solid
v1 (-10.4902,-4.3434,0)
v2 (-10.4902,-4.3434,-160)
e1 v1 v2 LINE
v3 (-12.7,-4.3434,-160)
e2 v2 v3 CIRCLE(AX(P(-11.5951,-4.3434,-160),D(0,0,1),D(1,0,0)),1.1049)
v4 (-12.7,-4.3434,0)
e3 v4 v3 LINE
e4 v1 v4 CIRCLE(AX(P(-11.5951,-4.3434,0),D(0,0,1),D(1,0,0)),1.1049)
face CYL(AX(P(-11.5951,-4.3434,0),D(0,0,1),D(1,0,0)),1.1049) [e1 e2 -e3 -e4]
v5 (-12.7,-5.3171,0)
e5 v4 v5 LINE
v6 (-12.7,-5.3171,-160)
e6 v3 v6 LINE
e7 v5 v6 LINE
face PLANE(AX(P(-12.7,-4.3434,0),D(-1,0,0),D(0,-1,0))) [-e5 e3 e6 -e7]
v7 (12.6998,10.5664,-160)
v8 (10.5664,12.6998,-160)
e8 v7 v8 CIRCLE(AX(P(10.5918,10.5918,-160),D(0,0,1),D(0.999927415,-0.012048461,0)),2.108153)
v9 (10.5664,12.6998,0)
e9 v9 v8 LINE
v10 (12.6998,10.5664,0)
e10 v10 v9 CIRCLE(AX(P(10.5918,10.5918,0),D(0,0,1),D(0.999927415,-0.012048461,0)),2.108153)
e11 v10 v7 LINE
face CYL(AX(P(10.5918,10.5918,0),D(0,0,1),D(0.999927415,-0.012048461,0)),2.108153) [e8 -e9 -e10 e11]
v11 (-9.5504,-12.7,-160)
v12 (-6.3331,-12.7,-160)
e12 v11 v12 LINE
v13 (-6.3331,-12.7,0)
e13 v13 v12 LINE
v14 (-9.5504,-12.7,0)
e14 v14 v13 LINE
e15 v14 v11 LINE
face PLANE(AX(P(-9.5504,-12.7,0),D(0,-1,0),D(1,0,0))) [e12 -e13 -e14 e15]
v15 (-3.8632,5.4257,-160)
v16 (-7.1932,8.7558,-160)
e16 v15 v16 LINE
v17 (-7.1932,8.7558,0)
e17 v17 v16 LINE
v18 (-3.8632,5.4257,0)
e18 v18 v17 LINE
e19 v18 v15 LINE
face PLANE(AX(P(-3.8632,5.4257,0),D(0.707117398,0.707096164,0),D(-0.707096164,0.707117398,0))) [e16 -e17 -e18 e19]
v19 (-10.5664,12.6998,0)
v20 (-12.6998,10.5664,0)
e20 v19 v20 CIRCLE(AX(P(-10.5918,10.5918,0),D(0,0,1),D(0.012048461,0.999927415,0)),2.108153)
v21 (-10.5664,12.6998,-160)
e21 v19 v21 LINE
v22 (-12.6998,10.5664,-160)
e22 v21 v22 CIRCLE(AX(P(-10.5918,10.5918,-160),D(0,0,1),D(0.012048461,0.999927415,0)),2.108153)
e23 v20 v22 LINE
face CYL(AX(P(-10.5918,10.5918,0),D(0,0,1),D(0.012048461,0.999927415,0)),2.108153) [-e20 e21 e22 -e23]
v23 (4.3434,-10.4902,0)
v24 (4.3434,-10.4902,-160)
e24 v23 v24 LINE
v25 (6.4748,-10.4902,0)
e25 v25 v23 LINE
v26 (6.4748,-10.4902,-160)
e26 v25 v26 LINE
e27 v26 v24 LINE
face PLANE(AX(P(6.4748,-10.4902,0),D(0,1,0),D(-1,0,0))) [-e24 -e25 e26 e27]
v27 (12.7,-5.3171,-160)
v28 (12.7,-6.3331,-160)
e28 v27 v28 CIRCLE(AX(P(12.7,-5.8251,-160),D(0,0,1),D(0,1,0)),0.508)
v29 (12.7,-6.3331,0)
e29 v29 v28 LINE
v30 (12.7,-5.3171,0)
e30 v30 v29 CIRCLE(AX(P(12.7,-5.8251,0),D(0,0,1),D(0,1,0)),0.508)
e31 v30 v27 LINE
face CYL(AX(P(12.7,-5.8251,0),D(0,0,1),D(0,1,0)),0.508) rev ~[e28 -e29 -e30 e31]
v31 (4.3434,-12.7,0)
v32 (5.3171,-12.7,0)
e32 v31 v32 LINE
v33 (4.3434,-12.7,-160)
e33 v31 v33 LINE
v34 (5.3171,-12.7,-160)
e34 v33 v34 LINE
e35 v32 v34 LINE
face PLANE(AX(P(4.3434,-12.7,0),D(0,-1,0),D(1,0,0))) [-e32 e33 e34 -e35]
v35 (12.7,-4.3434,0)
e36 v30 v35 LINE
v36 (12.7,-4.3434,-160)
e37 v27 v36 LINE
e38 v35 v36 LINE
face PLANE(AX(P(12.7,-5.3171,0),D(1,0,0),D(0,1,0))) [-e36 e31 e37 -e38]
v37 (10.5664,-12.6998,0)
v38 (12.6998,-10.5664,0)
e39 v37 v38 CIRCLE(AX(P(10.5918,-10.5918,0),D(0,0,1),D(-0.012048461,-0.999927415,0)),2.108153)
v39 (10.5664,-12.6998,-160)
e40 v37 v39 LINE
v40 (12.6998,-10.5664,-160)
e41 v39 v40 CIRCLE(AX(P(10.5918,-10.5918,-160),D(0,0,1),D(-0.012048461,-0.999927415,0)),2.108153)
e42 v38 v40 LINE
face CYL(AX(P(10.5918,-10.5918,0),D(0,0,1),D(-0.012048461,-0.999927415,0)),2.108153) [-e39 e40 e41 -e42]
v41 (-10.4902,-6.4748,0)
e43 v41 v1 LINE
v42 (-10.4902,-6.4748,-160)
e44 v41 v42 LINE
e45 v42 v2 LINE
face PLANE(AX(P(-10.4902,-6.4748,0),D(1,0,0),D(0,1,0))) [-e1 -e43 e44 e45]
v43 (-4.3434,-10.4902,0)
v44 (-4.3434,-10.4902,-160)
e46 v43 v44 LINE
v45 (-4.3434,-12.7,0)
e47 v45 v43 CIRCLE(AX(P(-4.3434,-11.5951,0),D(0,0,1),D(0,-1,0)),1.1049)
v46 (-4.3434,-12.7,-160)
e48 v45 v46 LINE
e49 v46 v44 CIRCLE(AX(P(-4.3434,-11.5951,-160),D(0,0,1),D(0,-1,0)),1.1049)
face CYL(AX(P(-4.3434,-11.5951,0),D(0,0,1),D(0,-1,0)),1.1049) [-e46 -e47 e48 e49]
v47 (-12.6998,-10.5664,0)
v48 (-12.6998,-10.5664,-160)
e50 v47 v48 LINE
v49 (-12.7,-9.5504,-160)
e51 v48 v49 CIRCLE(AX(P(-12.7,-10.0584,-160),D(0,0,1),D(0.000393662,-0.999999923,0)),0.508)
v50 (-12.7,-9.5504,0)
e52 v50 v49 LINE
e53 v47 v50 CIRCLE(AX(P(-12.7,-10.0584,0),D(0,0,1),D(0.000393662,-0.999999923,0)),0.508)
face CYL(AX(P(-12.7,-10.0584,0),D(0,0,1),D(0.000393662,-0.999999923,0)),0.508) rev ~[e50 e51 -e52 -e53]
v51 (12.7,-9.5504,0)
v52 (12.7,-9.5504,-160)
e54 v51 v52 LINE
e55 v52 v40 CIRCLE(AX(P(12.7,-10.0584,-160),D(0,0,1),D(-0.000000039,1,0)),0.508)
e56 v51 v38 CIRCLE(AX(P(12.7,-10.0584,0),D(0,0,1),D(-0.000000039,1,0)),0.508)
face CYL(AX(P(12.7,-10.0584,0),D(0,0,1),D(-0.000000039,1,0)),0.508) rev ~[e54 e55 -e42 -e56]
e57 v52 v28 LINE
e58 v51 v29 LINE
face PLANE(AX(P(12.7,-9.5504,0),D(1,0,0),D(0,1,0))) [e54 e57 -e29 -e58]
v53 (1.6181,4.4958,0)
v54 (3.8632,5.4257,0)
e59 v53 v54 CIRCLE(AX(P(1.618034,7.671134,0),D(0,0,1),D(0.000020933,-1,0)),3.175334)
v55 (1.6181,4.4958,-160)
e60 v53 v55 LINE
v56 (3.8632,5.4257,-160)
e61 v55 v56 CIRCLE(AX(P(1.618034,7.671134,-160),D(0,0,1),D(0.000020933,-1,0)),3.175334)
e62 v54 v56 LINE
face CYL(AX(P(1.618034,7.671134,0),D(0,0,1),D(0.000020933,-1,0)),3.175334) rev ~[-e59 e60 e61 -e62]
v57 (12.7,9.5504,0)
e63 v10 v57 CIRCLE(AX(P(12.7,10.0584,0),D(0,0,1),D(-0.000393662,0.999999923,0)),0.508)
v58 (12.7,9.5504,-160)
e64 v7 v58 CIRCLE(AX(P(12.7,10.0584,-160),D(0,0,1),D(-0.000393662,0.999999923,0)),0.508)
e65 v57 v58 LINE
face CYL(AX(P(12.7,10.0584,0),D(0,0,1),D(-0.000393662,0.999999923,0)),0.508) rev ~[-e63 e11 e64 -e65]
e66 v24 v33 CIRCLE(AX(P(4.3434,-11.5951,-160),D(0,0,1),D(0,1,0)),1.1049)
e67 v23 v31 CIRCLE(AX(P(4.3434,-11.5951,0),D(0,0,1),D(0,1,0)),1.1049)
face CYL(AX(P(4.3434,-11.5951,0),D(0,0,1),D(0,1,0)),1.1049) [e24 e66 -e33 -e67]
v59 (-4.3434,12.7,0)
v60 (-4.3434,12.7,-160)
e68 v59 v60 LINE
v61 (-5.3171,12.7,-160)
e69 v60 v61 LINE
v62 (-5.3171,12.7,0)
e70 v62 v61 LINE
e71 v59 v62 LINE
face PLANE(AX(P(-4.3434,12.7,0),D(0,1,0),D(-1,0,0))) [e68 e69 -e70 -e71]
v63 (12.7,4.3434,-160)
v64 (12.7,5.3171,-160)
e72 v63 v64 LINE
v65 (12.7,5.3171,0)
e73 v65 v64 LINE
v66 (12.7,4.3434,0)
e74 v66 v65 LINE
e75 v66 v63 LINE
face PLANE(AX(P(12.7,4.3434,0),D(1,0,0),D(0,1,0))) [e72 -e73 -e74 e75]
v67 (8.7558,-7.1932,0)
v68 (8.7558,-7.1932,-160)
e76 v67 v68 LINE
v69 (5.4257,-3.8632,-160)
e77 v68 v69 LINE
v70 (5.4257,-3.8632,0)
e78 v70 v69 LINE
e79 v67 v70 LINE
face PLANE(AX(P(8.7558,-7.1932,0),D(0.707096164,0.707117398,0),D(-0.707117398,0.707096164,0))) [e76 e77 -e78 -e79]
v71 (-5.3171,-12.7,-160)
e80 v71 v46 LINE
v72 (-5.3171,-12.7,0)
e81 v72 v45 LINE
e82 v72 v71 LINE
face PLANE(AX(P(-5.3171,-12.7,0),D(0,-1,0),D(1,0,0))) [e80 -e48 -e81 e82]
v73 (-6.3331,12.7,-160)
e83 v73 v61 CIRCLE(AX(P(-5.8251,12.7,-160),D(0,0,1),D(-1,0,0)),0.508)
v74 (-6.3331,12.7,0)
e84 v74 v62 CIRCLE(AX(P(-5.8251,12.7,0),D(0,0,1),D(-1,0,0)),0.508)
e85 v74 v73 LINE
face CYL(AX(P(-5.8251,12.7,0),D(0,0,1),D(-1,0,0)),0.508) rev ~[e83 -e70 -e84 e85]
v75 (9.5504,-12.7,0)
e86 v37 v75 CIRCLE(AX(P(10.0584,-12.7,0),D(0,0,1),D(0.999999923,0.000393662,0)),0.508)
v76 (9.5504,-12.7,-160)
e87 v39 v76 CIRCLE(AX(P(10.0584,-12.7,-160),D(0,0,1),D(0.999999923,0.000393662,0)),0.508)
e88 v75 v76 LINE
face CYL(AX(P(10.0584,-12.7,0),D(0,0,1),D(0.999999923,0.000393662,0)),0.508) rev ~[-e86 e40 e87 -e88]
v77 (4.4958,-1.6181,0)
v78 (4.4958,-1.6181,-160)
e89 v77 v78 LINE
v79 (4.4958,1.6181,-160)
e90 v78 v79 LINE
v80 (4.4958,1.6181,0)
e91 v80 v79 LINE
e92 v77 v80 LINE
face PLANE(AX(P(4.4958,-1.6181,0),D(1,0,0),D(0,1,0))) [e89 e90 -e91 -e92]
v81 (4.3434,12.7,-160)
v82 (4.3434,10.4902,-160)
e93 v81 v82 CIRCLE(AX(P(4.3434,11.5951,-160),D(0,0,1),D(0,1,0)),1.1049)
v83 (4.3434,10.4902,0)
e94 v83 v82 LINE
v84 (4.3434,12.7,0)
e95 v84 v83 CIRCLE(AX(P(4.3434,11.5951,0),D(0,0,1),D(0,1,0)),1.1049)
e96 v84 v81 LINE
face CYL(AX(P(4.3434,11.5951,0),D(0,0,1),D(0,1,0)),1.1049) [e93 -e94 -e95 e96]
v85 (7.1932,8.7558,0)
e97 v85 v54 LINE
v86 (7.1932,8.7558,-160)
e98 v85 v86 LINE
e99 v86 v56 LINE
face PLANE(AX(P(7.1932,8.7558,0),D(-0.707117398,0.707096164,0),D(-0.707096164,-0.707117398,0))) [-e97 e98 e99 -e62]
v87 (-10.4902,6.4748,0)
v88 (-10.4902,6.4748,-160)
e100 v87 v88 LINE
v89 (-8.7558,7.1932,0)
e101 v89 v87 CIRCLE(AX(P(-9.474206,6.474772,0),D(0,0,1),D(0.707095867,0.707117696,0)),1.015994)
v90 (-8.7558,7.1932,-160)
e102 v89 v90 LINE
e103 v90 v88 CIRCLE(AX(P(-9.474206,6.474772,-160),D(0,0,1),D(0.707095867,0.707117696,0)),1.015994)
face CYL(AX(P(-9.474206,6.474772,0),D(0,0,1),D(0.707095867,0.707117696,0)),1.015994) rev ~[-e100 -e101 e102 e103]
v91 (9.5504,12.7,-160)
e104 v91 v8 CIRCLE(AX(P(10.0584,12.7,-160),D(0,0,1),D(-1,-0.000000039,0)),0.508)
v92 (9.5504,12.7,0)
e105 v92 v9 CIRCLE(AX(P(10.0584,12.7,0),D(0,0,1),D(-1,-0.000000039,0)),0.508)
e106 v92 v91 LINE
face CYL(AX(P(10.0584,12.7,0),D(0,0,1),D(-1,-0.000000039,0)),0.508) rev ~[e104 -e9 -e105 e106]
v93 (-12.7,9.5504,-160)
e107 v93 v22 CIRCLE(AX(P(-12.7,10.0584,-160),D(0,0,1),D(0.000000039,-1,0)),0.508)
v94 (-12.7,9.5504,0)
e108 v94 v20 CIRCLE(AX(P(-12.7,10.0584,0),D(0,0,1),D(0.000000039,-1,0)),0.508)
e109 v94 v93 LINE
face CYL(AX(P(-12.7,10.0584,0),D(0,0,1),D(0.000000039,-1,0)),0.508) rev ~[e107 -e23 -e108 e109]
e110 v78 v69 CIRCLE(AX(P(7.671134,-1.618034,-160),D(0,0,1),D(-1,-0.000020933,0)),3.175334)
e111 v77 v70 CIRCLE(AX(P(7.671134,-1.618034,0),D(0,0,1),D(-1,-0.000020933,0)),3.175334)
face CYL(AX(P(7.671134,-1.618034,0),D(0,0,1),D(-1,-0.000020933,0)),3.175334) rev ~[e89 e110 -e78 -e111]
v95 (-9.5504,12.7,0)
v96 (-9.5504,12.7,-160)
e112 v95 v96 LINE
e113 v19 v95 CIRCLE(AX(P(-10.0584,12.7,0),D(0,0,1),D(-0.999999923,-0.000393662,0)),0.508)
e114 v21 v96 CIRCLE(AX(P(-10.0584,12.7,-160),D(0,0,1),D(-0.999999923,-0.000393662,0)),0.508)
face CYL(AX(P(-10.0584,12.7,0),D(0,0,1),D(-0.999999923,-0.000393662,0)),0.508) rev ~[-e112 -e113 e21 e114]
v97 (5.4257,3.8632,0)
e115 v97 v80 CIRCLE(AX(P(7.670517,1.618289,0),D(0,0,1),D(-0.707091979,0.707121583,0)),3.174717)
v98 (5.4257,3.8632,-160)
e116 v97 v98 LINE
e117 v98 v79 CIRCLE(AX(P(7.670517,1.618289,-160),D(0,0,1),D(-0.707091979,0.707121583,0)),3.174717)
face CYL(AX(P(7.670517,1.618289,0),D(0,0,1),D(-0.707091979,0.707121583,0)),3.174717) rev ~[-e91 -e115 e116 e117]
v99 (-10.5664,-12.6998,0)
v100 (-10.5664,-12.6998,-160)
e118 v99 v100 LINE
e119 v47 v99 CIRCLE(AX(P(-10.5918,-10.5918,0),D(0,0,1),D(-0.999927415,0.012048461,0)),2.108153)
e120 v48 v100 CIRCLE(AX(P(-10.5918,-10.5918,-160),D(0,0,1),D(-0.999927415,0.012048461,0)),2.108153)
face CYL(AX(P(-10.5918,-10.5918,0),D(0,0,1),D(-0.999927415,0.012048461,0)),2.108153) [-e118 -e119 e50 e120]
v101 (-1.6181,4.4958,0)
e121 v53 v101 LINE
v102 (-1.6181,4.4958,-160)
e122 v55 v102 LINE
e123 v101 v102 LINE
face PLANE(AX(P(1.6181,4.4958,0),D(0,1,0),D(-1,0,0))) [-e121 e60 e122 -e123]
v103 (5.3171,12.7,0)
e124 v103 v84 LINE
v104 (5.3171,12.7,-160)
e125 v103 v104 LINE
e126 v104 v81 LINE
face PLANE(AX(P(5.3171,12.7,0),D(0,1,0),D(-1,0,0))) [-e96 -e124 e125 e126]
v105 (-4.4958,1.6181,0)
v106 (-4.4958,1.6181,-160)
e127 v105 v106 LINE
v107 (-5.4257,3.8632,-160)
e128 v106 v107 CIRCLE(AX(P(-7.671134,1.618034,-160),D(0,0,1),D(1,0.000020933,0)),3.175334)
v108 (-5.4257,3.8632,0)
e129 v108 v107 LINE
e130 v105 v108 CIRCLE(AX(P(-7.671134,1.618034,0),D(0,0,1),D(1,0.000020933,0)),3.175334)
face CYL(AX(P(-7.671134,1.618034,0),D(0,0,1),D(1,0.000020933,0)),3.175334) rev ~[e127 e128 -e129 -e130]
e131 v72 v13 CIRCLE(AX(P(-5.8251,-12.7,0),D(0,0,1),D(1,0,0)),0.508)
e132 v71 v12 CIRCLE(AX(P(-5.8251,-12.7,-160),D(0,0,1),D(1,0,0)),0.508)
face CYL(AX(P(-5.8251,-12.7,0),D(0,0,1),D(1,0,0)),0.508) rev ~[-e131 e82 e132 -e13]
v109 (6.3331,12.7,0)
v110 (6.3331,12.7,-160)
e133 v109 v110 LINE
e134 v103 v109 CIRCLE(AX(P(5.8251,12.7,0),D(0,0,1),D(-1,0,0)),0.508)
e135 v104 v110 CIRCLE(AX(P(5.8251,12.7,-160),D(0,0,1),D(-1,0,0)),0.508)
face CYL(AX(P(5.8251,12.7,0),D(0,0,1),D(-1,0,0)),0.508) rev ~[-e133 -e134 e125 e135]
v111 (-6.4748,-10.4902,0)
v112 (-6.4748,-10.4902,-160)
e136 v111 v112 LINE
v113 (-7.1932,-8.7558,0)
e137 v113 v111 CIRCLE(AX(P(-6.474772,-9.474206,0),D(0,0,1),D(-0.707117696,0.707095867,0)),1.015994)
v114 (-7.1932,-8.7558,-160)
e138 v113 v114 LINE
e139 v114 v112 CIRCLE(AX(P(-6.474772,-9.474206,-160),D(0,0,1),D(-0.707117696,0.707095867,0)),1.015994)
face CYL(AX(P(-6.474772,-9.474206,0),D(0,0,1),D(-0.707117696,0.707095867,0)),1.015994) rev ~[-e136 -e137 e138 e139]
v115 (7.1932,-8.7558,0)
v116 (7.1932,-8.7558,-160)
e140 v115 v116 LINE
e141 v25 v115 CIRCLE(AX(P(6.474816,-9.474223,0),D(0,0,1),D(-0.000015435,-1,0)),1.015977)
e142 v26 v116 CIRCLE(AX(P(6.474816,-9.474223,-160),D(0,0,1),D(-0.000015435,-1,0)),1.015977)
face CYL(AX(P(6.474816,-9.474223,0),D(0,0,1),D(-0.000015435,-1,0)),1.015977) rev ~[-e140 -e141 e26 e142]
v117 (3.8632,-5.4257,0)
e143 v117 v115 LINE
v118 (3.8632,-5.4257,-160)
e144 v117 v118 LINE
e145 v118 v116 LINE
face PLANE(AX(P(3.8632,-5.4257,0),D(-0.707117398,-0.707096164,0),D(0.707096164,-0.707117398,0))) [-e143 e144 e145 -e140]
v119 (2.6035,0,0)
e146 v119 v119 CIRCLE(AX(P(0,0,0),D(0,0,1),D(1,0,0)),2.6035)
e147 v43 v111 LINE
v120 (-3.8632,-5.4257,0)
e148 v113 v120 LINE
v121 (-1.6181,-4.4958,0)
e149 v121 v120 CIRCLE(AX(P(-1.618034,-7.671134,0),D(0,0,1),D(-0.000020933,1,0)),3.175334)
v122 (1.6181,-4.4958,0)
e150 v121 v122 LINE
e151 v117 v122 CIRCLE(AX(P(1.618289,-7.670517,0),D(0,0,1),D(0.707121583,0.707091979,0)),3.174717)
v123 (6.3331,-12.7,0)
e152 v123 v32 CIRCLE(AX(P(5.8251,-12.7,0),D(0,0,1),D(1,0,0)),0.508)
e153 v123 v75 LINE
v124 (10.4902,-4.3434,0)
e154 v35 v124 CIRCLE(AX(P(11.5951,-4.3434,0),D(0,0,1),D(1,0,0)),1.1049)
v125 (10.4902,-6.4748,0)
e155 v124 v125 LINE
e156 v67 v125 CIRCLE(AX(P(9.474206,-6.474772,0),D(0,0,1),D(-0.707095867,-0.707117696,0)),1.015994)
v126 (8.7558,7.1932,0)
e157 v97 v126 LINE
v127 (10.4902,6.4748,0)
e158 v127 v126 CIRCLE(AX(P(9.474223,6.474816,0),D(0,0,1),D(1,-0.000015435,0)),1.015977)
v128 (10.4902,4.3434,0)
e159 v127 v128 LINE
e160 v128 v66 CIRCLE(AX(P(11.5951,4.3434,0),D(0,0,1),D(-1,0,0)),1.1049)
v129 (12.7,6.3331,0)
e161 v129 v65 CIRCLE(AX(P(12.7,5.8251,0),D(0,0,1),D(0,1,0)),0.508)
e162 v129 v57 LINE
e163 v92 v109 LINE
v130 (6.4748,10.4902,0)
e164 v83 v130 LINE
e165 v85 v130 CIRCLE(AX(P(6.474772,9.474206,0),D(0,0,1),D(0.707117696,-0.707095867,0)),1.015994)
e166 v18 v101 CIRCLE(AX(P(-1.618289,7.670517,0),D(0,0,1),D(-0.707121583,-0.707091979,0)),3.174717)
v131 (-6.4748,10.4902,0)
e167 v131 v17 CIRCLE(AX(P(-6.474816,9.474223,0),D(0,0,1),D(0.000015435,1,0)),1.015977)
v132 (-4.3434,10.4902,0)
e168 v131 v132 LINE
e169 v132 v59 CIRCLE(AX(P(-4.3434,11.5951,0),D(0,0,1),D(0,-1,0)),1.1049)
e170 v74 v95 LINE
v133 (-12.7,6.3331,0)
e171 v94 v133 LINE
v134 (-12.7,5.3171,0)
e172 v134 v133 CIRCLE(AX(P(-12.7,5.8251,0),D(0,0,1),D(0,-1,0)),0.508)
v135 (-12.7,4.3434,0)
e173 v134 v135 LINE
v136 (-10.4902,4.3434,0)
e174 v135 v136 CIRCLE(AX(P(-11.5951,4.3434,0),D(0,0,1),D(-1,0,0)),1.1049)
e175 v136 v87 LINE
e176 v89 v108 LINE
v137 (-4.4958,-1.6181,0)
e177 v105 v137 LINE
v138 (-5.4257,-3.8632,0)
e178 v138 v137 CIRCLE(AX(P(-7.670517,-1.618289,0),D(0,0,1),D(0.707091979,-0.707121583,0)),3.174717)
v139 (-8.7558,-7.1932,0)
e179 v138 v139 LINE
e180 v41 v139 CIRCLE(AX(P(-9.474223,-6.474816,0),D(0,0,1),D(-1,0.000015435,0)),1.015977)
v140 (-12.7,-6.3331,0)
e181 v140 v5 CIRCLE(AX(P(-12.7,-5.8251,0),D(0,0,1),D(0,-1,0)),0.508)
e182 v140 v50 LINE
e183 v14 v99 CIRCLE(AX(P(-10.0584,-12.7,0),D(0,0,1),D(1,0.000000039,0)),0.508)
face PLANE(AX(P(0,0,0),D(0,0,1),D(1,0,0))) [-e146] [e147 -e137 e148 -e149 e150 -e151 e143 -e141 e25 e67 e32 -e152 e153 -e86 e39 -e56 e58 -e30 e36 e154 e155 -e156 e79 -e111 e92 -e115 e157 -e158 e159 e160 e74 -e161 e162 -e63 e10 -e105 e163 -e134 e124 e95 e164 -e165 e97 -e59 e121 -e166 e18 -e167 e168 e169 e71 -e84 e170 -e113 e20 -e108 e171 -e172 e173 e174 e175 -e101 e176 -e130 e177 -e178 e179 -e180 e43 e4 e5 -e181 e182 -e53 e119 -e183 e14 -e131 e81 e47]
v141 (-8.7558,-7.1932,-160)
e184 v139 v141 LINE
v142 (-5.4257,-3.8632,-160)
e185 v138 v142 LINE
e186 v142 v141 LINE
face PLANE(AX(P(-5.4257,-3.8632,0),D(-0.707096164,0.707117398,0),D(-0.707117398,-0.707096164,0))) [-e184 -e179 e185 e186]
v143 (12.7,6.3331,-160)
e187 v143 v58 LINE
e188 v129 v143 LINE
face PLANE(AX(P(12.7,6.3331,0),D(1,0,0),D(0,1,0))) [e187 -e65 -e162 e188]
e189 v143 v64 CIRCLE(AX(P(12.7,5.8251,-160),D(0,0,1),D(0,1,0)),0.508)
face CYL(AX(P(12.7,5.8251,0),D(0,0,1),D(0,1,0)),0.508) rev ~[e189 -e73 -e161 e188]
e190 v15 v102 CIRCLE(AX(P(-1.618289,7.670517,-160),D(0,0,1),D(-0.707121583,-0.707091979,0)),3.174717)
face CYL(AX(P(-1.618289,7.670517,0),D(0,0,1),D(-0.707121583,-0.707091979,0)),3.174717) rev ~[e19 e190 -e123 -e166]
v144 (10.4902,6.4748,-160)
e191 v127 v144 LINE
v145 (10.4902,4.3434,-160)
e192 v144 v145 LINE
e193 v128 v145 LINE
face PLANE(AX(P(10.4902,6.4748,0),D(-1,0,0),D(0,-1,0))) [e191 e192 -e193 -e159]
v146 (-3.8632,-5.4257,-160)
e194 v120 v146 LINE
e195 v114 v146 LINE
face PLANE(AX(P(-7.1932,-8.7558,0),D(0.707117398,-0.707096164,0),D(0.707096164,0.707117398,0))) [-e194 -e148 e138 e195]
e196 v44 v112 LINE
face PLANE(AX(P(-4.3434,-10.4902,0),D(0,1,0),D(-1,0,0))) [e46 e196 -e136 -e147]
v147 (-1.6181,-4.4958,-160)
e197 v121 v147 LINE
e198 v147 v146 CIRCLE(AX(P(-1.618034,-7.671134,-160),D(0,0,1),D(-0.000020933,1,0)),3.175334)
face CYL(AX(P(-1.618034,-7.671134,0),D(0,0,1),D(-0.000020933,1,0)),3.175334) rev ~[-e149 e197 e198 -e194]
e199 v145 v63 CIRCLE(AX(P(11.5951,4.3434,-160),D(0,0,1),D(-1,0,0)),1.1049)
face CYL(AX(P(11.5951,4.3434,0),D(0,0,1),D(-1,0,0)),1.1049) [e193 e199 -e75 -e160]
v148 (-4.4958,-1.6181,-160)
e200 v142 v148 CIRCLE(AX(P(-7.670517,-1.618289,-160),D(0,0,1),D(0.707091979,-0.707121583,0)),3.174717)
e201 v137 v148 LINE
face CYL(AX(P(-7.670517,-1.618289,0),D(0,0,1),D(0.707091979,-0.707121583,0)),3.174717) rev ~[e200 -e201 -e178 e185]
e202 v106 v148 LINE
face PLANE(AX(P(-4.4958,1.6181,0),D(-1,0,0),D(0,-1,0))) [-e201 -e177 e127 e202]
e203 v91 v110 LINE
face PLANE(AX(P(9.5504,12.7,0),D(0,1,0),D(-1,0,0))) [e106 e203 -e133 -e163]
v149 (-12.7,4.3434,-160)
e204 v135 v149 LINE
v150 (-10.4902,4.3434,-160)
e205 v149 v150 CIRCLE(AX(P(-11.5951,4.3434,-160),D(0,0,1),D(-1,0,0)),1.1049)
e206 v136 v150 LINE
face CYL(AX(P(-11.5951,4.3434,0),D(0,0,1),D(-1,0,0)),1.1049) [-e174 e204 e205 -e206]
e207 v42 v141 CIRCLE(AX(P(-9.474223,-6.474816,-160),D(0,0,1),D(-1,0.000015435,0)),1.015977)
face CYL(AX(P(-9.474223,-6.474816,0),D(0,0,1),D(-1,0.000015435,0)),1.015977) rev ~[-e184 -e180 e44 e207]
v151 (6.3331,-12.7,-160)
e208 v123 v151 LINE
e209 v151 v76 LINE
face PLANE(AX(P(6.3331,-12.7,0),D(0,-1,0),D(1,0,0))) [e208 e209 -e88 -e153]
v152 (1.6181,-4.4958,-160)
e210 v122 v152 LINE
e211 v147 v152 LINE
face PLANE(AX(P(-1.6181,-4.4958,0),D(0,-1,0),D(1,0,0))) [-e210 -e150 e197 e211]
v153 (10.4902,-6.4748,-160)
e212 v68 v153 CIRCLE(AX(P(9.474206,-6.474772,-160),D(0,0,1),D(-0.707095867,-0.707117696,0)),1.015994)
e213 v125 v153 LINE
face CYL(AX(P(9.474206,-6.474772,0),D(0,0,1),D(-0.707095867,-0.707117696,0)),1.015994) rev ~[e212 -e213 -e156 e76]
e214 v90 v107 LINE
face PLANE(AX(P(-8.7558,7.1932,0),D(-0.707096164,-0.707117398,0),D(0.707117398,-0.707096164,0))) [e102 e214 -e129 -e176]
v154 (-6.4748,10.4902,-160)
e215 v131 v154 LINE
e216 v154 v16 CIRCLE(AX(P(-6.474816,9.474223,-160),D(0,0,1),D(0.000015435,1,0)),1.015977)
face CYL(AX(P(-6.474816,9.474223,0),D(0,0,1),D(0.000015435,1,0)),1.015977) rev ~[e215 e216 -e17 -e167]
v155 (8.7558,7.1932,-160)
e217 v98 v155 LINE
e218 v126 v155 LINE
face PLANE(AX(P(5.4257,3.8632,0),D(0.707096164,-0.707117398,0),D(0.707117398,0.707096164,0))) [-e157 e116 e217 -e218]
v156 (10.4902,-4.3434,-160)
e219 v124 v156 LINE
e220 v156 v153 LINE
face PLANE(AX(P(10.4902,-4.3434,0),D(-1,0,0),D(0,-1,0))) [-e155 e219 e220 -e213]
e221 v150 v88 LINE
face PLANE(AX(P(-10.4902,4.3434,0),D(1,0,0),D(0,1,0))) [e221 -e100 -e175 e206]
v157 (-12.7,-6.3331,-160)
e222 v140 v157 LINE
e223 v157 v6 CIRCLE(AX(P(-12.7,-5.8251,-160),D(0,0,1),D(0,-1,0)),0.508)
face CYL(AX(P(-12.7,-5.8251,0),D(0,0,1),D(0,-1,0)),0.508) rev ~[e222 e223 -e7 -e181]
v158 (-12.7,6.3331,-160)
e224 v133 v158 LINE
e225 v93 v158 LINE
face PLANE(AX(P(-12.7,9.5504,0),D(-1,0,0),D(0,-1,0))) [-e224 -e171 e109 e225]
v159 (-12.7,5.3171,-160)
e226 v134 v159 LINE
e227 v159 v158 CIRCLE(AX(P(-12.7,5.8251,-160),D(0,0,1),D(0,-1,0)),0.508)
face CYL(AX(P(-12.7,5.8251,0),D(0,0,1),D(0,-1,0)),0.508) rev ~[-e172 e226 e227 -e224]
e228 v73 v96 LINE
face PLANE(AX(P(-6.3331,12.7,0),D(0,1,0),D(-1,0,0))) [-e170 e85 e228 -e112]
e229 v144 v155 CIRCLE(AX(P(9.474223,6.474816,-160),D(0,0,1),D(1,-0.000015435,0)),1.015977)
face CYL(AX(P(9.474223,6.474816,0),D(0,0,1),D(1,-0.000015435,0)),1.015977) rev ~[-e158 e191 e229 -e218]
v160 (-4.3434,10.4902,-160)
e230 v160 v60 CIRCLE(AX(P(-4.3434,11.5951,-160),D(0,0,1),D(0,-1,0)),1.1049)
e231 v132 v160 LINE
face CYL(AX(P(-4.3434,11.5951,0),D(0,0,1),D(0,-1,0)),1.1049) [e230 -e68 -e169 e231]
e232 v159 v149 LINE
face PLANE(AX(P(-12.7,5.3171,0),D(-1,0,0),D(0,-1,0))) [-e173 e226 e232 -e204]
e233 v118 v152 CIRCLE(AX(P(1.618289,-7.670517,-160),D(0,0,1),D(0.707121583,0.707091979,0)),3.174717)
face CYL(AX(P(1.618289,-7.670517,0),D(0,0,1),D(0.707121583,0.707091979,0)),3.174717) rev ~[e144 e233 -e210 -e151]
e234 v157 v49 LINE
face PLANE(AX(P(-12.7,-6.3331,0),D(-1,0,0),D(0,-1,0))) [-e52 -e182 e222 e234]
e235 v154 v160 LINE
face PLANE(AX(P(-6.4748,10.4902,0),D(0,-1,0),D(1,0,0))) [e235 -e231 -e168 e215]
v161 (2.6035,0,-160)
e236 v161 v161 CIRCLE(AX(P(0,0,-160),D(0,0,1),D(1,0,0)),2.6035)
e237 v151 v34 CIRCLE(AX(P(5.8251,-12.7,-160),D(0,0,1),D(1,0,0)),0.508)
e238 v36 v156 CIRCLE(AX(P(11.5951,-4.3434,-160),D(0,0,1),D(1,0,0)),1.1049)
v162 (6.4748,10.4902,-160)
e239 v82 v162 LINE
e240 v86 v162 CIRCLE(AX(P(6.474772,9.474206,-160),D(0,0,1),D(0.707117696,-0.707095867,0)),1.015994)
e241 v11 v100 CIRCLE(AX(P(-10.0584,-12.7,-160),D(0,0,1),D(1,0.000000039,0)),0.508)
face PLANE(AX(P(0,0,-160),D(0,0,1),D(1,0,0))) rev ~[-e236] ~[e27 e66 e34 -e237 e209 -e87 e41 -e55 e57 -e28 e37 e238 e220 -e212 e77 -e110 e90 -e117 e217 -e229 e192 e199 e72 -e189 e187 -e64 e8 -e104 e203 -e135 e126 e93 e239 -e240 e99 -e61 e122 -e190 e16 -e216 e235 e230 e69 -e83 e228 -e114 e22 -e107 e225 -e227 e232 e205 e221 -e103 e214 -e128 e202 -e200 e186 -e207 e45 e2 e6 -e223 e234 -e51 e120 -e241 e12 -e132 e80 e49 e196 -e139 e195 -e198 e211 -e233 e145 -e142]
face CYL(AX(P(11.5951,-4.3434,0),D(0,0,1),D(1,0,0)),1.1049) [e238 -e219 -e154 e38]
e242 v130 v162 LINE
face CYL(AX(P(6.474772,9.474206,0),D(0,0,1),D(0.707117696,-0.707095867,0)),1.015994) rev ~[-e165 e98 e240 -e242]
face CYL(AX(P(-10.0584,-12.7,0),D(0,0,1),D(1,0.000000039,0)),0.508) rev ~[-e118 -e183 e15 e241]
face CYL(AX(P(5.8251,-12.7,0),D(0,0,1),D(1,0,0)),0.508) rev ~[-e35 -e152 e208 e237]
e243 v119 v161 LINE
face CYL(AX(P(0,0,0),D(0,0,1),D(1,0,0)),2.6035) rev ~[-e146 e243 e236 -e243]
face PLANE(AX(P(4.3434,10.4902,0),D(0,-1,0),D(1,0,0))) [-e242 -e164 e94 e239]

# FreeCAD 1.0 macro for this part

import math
import FreeCAD as App
import Part
import Sketcher
Q = App.Units.Quantity

doc = App.newDocument("Part")
params = doc.addObject("Spreadsheet::Sheet", "Params")
for row, (alias, value) in enumerate([
    ("sketch1_radius", "0.02 in"),
    ("sketch1_radius2", "0.04 in"),
    ("sketch1_diameter", "0.205 in"),
    ("sketch1_radius3", "0.083 in"),
    ("sketch1_radius4", "0.125 in"),
    ("pad1_length", "160 mm"),
], start=1):
    params.set(f"A{row}", alias)
    params.set(f"B{row}", "=" + value)
    params.setAlias(f"B{row}", alias)

body = doc.addObject("PartDesign::Body", "Body")

# Sketch on XY plane
sketch1 = doc.addObject("Sketcher::SketchObject", "Sketch")
body.addObject(sketch1)
sketch1.AttachmentSupport = (doc.XY_Plane, [""])
sketch1.MapMode = "FlatFace"
sketch1.addGeometry([
    Part.ArcOfCircle(Part.Circle(App.Vector(-12.7, -10.1, 0), App.Vector(0, 0, 1), 0.5), math.radians(-90), math.radians(90)),  # 0
    Part.ArcOfCircle(Part.Circle(App.Vector(-10.6, -10.6, 0), App.Vector(0, 0, 1), 2.1), math.radians(179), math.radians(271)),  # 1
    Part.ArcOfCircle(Part.Circle(App.Vector(-10.1, -12.7, 0), App.Vector(0, 0, 1), 0.5), math.radians(0), math.radians(180)),  # 2
    Part.LineSegment(App.Vector(-9.6, -12.7, 0), App.Vector(-6.3, -12.7, 0)),  # 3
    Part.ArcOfCircle(Part.Circle(App.Vector(-5.8, -12.7, 0), App.Vector(0, 0, 1), 0.5), math.radians(0), math.radians(180)),  # 4
    Part.LineSegment(App.Vector(-5.3, -12.7, 0), App.Vector(-4.3, -12.7, 0)),  # 5
    Part.ArcOfCircle(Part.Circle(App.Vector(-4.3, -11.6, 0), App.Vector(0, 0, 1), 1.1), math.radians(-90), math.radians(90)),  # 6
    Part.LineSegment(App.Vector(-4.3, -10.5, 0), App.Vector(-6.5, -10.5, 0)),  # 7
    Part.ArcOfCircle(Part.Circle(App.Vector(-6.5, -9.5, 0), App.Vector(0, 0, 1), 1), math.radians(135), math.radians(270)),  # 8
    Part.LineSegment(App.Vector(-7.2, -8.8, 0), App.Vector(-3.9, -5.4, 0)),  # 9
    Part.ArcOfCircle(Part.Circle(App.Vector(-1.6, -7.7, 0), App.Vector(0, 0, 1), 3.2), math.radians(90), math.radians(135)),  # 10
    Part.LineSegment(App.Vector(-1.6, -4.5, 0), App.Vector(1.6, -4.5, 0)),  # 11
    Part.ArcOfCircle(Part.Circle(App.Vector(1.6, -7.7, 0), App.Vector(0, 0, 1), 3.2), math.radians(45), math.radians(90)),  # 12
    Part.LineSegment(App.Vector(3.9, -5.4, 0), App.Vector(7.2, -8.8, 0)),  # 13
    Part.ArcOfCircle(Part.Circle(App.Vector(6.5, -9.5, 0), App.Vector(0, 0, 1), 1), math.radians(-90), math.radians(45)),  # 14
    Part.LineSegment(App.Vector(6.5, -10.5, 0), App.Vector(4.3, -10.5, 0)),  # 15
    Part.ArcOfCircle(Part.Circle(App.Vector(4.3, -11.6, 0), App.Vector(0, 0, 1), 1.1), math.radians(90), math.radians(270)),  # 16
    Part.LineSegment(App.Vector(4.3, -12.7, 0), App.Vector(5.3, -12.7, 0)),  # 17
    Part.ArcOfCircle(Part.Circle(App.Vector(5.8, -12.7, 0), App.Vector(0, 0, 1), 0.5), math.radians(0), math.radians(180)),  # 18
    Part.LineSegment(App.Vector(6.3, -12.7, 0), App.Vector(9.6, -12.7, 0)),  # 19
    Part.ArcOfCircle(Part.Circle(App.Vector(10.1, -12.7, 0), App.Vector(0, 0, 1), 0.5), math.radians(0), math.radians(180)),  # 20
    Part.ArcOfCircle(Part.Circle(App.Vector(10.6, -10.6, 0), App.Vector(0, 0, 1), 2.1), math.radians(-91), math.radians(1)),  # 21
    Part.ArcOfCircle(Part.Circle(App.Vector(12.7, -10.1, 0), App.Vector(0, 0, 1), 0.5), math.radians(90), math.radians(270)),  # 22
    Part.LineSegment(App.Vector(12.7, -9.6, 0), App.Vector(12.7, -6.3, 0)),  # 23
    Part.ArcOfCircle(Part.Circle(App.Vector(12.7, -5.8, 0), App.Vector(0, 0, 1), 0.5), math.radians(90), math.radians(270)),  # 24
    Part.LineSegment(App.Vector(12.7, -5.3, 0), App.Vector(12.7, -4.3, 0)),  # 25
    Part.ArcOfCircle(Part.Circle(App.Vector(11.6, -4.3, 0), App.Vector(0, 0, 1), 1.1), math.radians(0), math.radians(180)),  # 26
    Part.LineSegment(App.Vector(10.5, -4.3, 0), App.Vector(10.5, -6.5, 0)),  # 27
    Part.ArcOfCircle(Part.Circle(App.Vector(9.5, -6.5, 0), App.Vector(0, 0, 1), 1), math.radians(-135), math.radians(0)),  # 28
    Part.LineSegment(App.Vector(8.8, -7.2, 0), App.Vector(5.4, -3.9, 0)),  # 29
    Part.ArcOfCircle(Part.Circle(App.Vector(7.7, -1.6, 0), App.Vector(0, 0, 1), 3.2), math.radians(180), math.radians(225)),  # 30
    Part.LineSegment(App.Vector(4.5, -1.6, 0), App.Vector(4.5, 1.6, 0)),  # 31
    Part.ArcOfCircle(Part.Circle(App.Vector(7.7, 1.6, 0), App.Vector(0, 0, 1), 3.2), math.radians(135), math.radians(180)),  # 32
    Part.LineSegment(App.Vector(5.4, 3.9, 0), App.Vector(8.8, 7.2, 0)),  # 33
    Part.ArcOfCircle(Part.Circle(App.Vector(9.5, 6.5, 0), App.Vector(0, 0, 1), 1), math.radians(0), math.radians(135)),  # 34
    Part.LineSegment(App.Vector(10.5, 6.5, 0), App.Vector(10.5, 4.3, 0)),  # 35
    Part.ArcOfCircle(Part.Circle(App.Vector(11.6, 4.3, 0), App.Vector(0, 0, 1), 1.1), math.radians(180), math.radians(360)),  # 36
    Part.LineSegment(App.Vector(12.7, 4.3, 0), App.Vector(12.7, 5.3, 0)),  # 37
    Part.ArcOfCircle(Part.Circle(App.Vector(12.7, 5.8, 0), App.Vector(0, 0, 1), 0.5), math.radians(90), math.radians(270)),  # 38
    Part.LineSegment(App.Vector(12.7, 6.3, 0), App.Vector(12.7, 9.6, 0)),  # 39
    Part.ArcOfCircle(Part.Circle(App.Vector(12.7, 10.1, 0), App.Vector(0, 0, 1), 0.5), math.radians(90), math.radians(270)),  # 40
    Part.ArcOfCircle(Part.Circle(App.Vector(10.6, 10.6, 0), App.Vector(0, 0, 1), 2.1), math.radians(-1), math.radians(91)),  # 41
    Part.ArcOfCircle(Part.Circle(App.Vector(10.1, 12.7, 0), App.Vector(0, 0, 1), 0.5), math.radians(180), math.radians(360)),  # 42
    Part.LineSegment(App.Vector(9.6, 12.7, 0), App.Vector(6.3, 12.7, 0)),  # 43
    Part.ArcOfCircle(Part.Circle(App.Vector(5.8, 12.7, 0), App.Vector(0, 0, 1), 0.5), math.radians(180), math.radians(360)),  # 44
    Part.LineSegment(App.Vector(5.3, 12.7, 0), App.Vector(4.3, 12.7, 0)),  # 45
    Part.ArcOfCircle(Part.Circle(App.Vector(4.3, 11.6, 0), App.Vector(0, 0, 1), 1.1), math.radians(90), math.radians(270)),  # 46
    Part.LineSegment(App.Vector(4.3, 10.5, 0), App.Vector(6.5, 10.5, 0)),  # 47
    Part.ArcOfCircle(Part.Circle(App.Vector(6.5, 9.5, 0), App.Vector(0, 0, 1), 1), math.radians(-45), math.radians(90)),  # 48
    Part.LineSegment(App.Vector(7.2, 8.8, 0), App.Vector(3.9, 5.4, 0)),  # 49
    Part.ArcOfCircle(Part.Circle(App.Vector(1.6, 7.7, 0), App.Vector(0, 0, 1), 3.2), math.radians(-90), math.radians(-45)),  # 50
    Part.LineSegment(App.Vector(1.6, 4.5, 0), App.Vector(-1.6, 4.5, 0)),  # 51
    Part.ArcOfCircle(Part.Circle(App.Vector(-1.6, 7.7, 0), App.Vector(0, 0, 1), 3.2), math.radians(-135), math.radians(-90)),  # 52
    Part.LineSegment(App.Vector(-3.9, 5.4, 0), App.Vector(-7.2, 8.8, 0)),  # 53
    Part.ArcOfCircle(Part.Circle(App.Vector(-6.5, 9.5, 0), App.Vector(0, 0, 1), 1), math.radians(90), math.radians(225)),  # 54
    Part.LineSegment(App.Vector(-6.5, 10.5, 0), App.Vector(-4.3, 10.5, 0)),  # 55
    Part.ArcOfCircle(Part.Circle(App.Vector(-4.3, 11.6, 0), App.Vector(0, 0, 1), 1.1), math.radians(-90), math.radians(90)),  # 56
    Part.LineSegment(App.Vector(-4.3, 12.7, 0), App.Vector(-5.3, 12.7, 0)),  # 57
    Part.ArcOfCircle(Part.Circle(App.Vector(-5.8, 12.7, 0), App.Vector(0, 0, 1), 0.5), math.radians(180), math.radians(360)),  # 58
    Part.LineSegment(App.Vector(-6.3, 12.7, 0), App.Vector(-9.6, 12.7, 0)),  # 59
    Part.ArcOfCircle(Part.Circle(App.Vector(-10.1, 12.7, 0), App.Vector(0, 0, 1), 0.5), math.radians(-180), math.radians(0)),  # 60
    Part.ArcOfCircle(Part.Circle(App.Vector(-10.6, 10.6, 0), App.Vector(0, 0, 1), 2.1), math.radians(89), math.radians(181)),  # 61
    Part.ArcOfCircle(Part.Circle(App.Vector(-12.7, 10.1, 0), App.Vector(0, 0, 1), 0.5), math.radians(-90), math.radians(90)),  # 62
    Part.LineSegment(App.Vector(-12.7, 9.6, 0), App.Vector(-12.7, 6.3, 0)),  # 63
    Part.ArcOfCircle(Part.Circle(App.Vector(-12.7, 5.8, 0), App.Vector(0, 0, 1), 0.5), math.radians(-90), math.radians(90)),  # 64
    Part.LineSegment(App.Vector(-12.7, 5.3, 0), App.Vector(-12.7, 4.3, 0)),  # 65
    Part.ArcOfCircle(Part.Circle(App.Vector(-11.6, 4.3, 0), App.Vector(0, 0, 1), 1.1), math.radians(180), math.radians(360)),  # 66
    Part.LineSegment(App.Vector(-10.5, 4.3, 0), App.Vector(-10.5, 6.5, 0)),  # 67
    Part.ArcOfCircle(Part.Circle(App.Vector(-9.5, 6.5, 0), App.Vector(0, 0, 1), 1), math.radians(45), math.radians(180)),  # 68
    Part.LineSegment(App.Vector(-8.8, 7.2, 0), App.Vector(-5.4, 3.9, 0)),  # 69
    Part.ArcOfCircle(Part.Circle(App.Vector(-7.7, 1.6, 0), App.Vector(0, 0, 1), 3.2), math.radians(0), math.radians(45)),  # 70
    Part.LineSegment(App.Vector(-4.5, 1.6, 0), App.Vector(-4.5, -1.6, 0)),  # 71
    Part.ArcOfCircle(Part.Circle(App.Vector(-7.7, -1.6, 0), App.Vector(0, 0, 1), 3.2), math.radians(-45), math.radians(0)),  # 72
    Part.LineSegment(App.Vector(-5.4, -3.9, 0), App.Vector(-8.8, -7.2, 0)),  # 73
    Part.ArcOfCircle(Part.Circle(App.Vector(-9.5, -6.5, 0), App.Vector(0, 0, 1), 1), math.radians(180), math.radians(315)),  # 74
    Part.LineSegment(App.Vector(-10.5, -6.5, 0), App.Vector(-10.5, -4.3, 0)),  # 75
    Part.ArcOfCircle(Part.Circle(App.Vector(-11.6, -4.3, 0), App.Vector(0, 0, 1), 1.1), math.radians(0), math.radians(180)),  # 76
    Part.LineSegment(App.Vector(-12.7, -4.3, 0), App.Vector(-12.7, -5.3, 0)),  # 77
    Part.ArcOfCircle(Part.Circle(App.Vector(-12.7, -5.8, 0), App.Vector(0, 0, 1), 0.5), math.radians(-90), math.radians(90)),  # 78
    Part.LineSegment(App.Vector(-12.7, -6.3, 0), App.Vector(-12.7, -9.6, 0)),  # 79
    Part.Circle(App.Vector(0, 0, 0), App.Vector(0, 0, 1), 2.6),  # 80
], False)
sketch1.addConstraint([
    Sketcher.Constraint("Coincident", 0, 1, 1, 1),
    Sketcher.Constraint("Coincident", 1, 2, 2, 2),
    Sketcher.Constraint("Coincident", 2, 1, 3, 1),
    Sketcher.Constraint("Coincident", 3, 2, 4, 2),
    Sketcher.Constraint("Coincident", 4, 1, 5, 1),
    Sketcher.Constraint("Tangent", 5, 2, 6, 1),
    Sketcher.Constraint("Tangent", 6, 2, 7, 1),
    Sketcher.Constraint("Tangent", 7, 2, 8, 2),
    Sketcher.Constraint("Tangent", 8, 1, 9, 1),
    Sketcher.Constraint("Tangent", 9, 2, 10, 2),
    Sketcher.Constraint("Tangent", 10, 1, 11, 1),
    Sketcher.Constraint("Tangent", 11, 2, 12, 2),
    Sketcher.Constraint("Tangent", 12, 1, 13, 1),
    Sketcher.Constraint("Tangent", 13, 2, 14, 2),
    Sketcher.Constraint("Tangent", 14, 1, 15, 1),
    Sketcher.Constraint("Tangent", 15, 2, 16, 1),
    Sketcher.Constraint("Tangent", 16, 2, 17, 1),
    Sketcher.Constraint("Coincident", 17, 2, 18, 2),
    Sketcher.Constraint("Coincident", 18, 1, 19, 1),
    Sketcher.Constraint("Coincident", 19, 2, 20, 2),
    Sketcher.Constraint("Coincident", 20, 1, 21, 1),
    Sketcher.Constraint("Coincident", 21, 2, 22, 2),
    Sketcher.Constraint("Coincident", 22, 1, 23, 1),
    Sketcher.Constraint("Coincident", 23, 2, 24, 2),
    Sketcher.Constraint("Coincident", 24, 1, 25, 1),
    Sketcher.Constraint("Tangent", 25, 2, 26, 1),
    Sketcher.Constraint("Tangent", 26, 2, 27, 1),
    Sketcher.Constraint("Tangent", 27, 2, 28, 2),
    Sketcher.Constraint("Tangent", 28, 1, 29, 1),
    Sketcher.Constraint("Tangent", 29, 2, 30, 2),
    Sketcher.Constraint("Tangent", 30, 1, 31, 1),
    Sketcher.Constraint("Tangent", 31, 2, 32, 2),
    Sketcher.Constraint("Tangent", 32, 1, 33, 1),
    Sketcher.Constraint("Tangent", 33, 2, 34, 2),
    Sketcher.Constraint("Tangent", 34, 1, 35, 1),
    Sketcher.Constraint("Tangent", 35, 2, 36, 1),
    Sketcher.Constraint("Tangent", 36, 2, 37, 1),
    Sketcher.Constraint("Coincident", 37, 2, 38, 2),
    Sketcher.Constraint("Coincident", 38, 1, 39, 1),
    Sketcher.Constraint("Coincident", 39, 2, 40, 2),
    Sketcher.Constraint("Coincident", 40, 1, 41, 1),
    Sketcher.Constraint("Coincident", 41, 2, 42, 2),
    Sketcher.Constraint("Coincident", 42, 1, 43, 1),
    Sketcher.Constraint("Coincident", 43, 2, 44, 2),
    Sketcher.Constraint("Coincident", 44, 1, 45, 1),
    Sketcher.Constraint("Tangent", 45, 2, 46, 1),
    Sketcher.Constraint("Tangent", 46, 2, 47, 1),
    Sketcher.Constraint("Tangent", 47, 2, 48, 2),
    Sketcher.Constraint("Tangent", 48, 1, 49, 1),
    Sketcher.Constraint("Tangent", 49, 2, 50, 2),
    Sketcher.Constraint("Tangent", 50, 1, 51, 1),
    Sketcher.Constraint("Tangent", 51, 2, 52, 2),
    Sketcher.Constraint("Tangent", 52, 1, 53, 1),
    Sketcher.Constraint("Tangent", 53, 2, 54, 2),
    Sketcher.Constraint("Tangent", 54, 1, 55, 1),
    Sketcher.Constraint("Tangent", 55, 2, 56, 1),
    Sketcher.Constraint("Tangent", 56, 2, 57, 1),
    Sketcher.Constraint("Coincident", 57, 2, 58, 2),
    Sketcher.Constraint("Coincident", 58, 1, 59, 1),
    Sketcher.Constraint("Coincident", 59, 2, 60, 2),
    Sketcher.Constraint("Coincident", 60, 1, 61, 1),
    Sketcher.Constraint("Coincident", 61, 2, 62, 2),
    Sketcher.Constraint("Coincident", 62, 1, 63, 1),
    Sketcher.Constraint("Coincident", 63, 2, 64, 2),
    Sketcher.Constraint("Coincident", 64, 1, 65, 1),
    Sketcher.Constraint("Tangent", 65, 2, 66, 1),
    Sketcher.Constraint("Tangent", 66, 2, 67, 1),
    Sketcher.Constraint("Tangent", 67, 2, 68, 2),
    Sketcher.Constraint("Tangent", 68, 1, 69, 1),
    Sketcher.Constraint("Tangent", 69, 2, 70, 2),
    Sketcher.Constraint("Tangent", 70, 1, 71, 1),
    Sketcher.Constraint("Tangent", 71, 2, 72, 2),
    Sketcher.Constraint("Tangent", 72, 1, 73, 1),
    Sketcher.Constraint("Tangent", 73, 2, 74, 2),
    Sketcher.Constraint("Tangent", 74, 1, 75, 1),
    Sketcher.Constraint("Tangent", 75, 2, 76, 1),
    Sketcher.Constraint("Tangent", 76, 2, 77, 1),
    Sketcher.Constraint("Coincident", 77, 2, 78, 2),
    Sketcher.Constraint("Coincident", 78, 1, 79, 1),
    Sketcher.Constraint("Coincident", 79, 2, 0, 2),
    Sketcher.Constraint("Horizontal", 3),
    Sketcher.Constraint("Horizontal", 5),
    Sketcher.Constraint("Horizontal", 7),
    Sketcher.Constraint("Horizontal", 11),
    Sketcher.Constraint("Horizontal", 15),
    Sketcher.Constraint("Horizontal", 17),
    Sketcher.Constraint("Horizontal", 19),
    Sketcher.Constraint("Vertical", 23),
    Sketcher.Constraint("Vertical", 25),
    Sketcher.Constraint("Vertical", 27),
    Sketcher.Constraint("Vertical", 31),
    Sketcher.Constraint("Vertical", 35),
    Sketcher.Constraint("Vertical", 37),
    Sketcher.Constraint("Vertical", 39),
    Sketcher.Constraint("Horizontal", 43),
    Sketcher.Constraint("Horizontal", 45),
    Sketcher.Constraint("Horizontal", 47),
    Sketcher.Constraint("Horizontal", 51),
    Sketcher.Constraint("Horizontal", 55),
    Sketcher.Constraint("Horizontal", 57),
    Sketcher.Constraint("Horizontal", 59),
    Sketcher.Constraint("Vertical", 63),
    Sketcher.Constraint("Vertical", 65),
    Sketcher.Constraint("Vertical", 67),
    Sketcher.Constraint("Vertical", 71),
    Sketcher.Constraint("Vertical", 75),
    Sketcher.Constraint("Vertical", 77),
    Sketcher.Constraint("Vertical", 79),
    Sketcher.Constraint("Coincident", 80, 3, -1, 1),
    Sketcher.Constraint("Equal", 0, 2),
    Sketcher.Constraint("Equal", 2, 4),
    Sketcher.Constraint("Equal", 10, 12),
    Sketcher.Constraint("Equal", 8, 14),
    Sketcher.Constraint("Equal", 6, 16),
    Sketcher.Constraint("Equal", 4, 18),
    Sketcher.Constraint("Equal", 18, 20),
    Sketcher.Constraint("Equal", 1, 21),
    Sketcher.Constraint("Equal", 20, 22),
    Sketcher.Constraint("Equal", 22, 24),
    Sketcher.Constraint("Equal", 16, 26),
    Sketcher.Constraint("Equal", 14, 28),
    Sketcher.Constraint("Equal", 12, 30),
    Sketcher.Constraint("Equal", 30, 32),
    Sketcher.Constraint("Equal", 28, 34),
    Sketcher.Constraint("Equal", 26, 36),
    Sketcher.Constraint("Equal", 24, 38),
    Sketcher.Constraint("Equal", 38, 40),
    Sketcher.Constraint("Equal", 21, 41),
    Sketcher.Constraint("Equal", 40, 42),
    Sketcher.Constraint("Equal", 42, 44),
    Sketcher.Constraint("Equal", 36, 46),
    Sketcher.Constraint("Equal", 34, 48),
    Sketcher.Constraint("Equal", 32, 50),
    Sketcher.Constraint("Equal", 50, 52),
    Sketcher.Constraint("Equal", 48, 54),
    Sketcher.Constraint("Equal", 46, 56),
    Sketcher.Constraint("Equal", 44, 58),
    Sketcher.Constraint("Equal", 58, 60),
    Sketcher.Constraint("Equal", 41, 61),
    Sketcher.Constraint("Equal", 60, 62),
    Sketcher.Constraint("Equal", 62, 64),
    Sketcher.Constraint("Equal", 56, 66),
    Sketcher.Constraint("Equal", 54, 68),
    Sketcher.Constraint("Equal", 52, 70),
    Sketcher.Constraint("Equal", 70, 72),
    Sketcher.Constraint("Equal", 68, 74),
    Sketcher.Constraint("Equal", 66, 76),
    Sketcher.Constraint("Equal", 64, 78),
    Sketcher.Constraint("Symmetric", 0, 3, 40, 3, -1, 1),
    Sketcher.Constraint("Symmetric", 1, 3, 41, 3, -1, 1),
    Sketcher.Constraint("Symmetric", 2, 3, 42, 3, -1, 1),
    Sketcher.Constraint("Symmetric", 4, 3, 44, 3, -1, 1),
    Sketcher.Constraint("Symmetric", 6, 3, 46, 3, -1, 1),
    Sketcher.Constraint("Symmetric", 10, 3, 50, 3, -1, 1),
    Sketcher.Constraint("Symmetric", 14, 3, 54, 3, -1, 1),
    Sketcher.Constraint("Symmetric", 18, 3, 58, 3, -1, 1),
    Sketcher.Constraint("Symmetric", 20, 3, 60, 3, -1, 1),
    Sketcher.Constraint("Symmetric", 21, 3, 61, 3, -1, 1),
    Sketcher.Constraint("Symmetric", 22, 3, 62, 3, -1, 1),
    Sketcher.Constraint("Symmetric", 24, 3, 64, 3, -1, 1),
    Sketcher.Constraint("Symmetric", 26, 3, 66, 3, -1, 1),
    Sketcher.Constraint("Symmetric", 30, 3, 70, 3, -1, 1),
    Sketcher.Constraint("Symmetric", 34, 3, 74, 3, -1, 1),
    Sketcher.Constraint("Symmetric", 38, 3, 78, 3, -1, 1),
    Sketcher.Constraint("Symmetric", 8, 3, 14, 3, -2),
    Sketcher.Constraint("Symmetric", 4, 3, 18, 3, -2),
    Sketcher.Constraint("Symmetric", 2, 3, 20, 3, -2),
    Sketcher.Constraint("Symmetric", 1, 3, 21, 3, -2),
    Sketcher.Constraint("Symmetric", 0, 3, 22, 3, -2),
    Sketcher.Constraint("Symmetric", 38, 3, 64, 3, -2),
    Sketcher.Constraint("Symmetric", 36, 3, 66, 3, -2),
    Sketcher.Constraint("Symmetric", 49, 2, 52, 1, -2),
    Sketcher.Constraint("Symmetric", 33, 2, 68, 1, -2),
    Sketcher.Constraint("Symmetric", 29, 2, 72, 1, -2),
    Sketcher.Constraint("Perpendicular", 9, 13),
    Sketcher.Constraint("Parallel", 13, 29),
    Sketcher.Constraint("Perpendicular", 29, 33),
    Sketcher.Constraint("Horizontal", 2, 3, 4, 3),
    Sketcher.Constraint("Horizontal", 26, 3, 76, 3),
    Sketcher.Constraint("Horizontal", 20, 3, 1, 2),
    Sketcher.Constraint("Horizontal", 1, 2, 2, 1),
    Sketcher.Constraint("Horizontal", 3, 2, 4, 1),
    Sketcher.Constraint("Horizontal", 17, 2, 18, 1),
    Sketcher.Constraint("Horizontal", 41, 2, 42, 1),
    Sketcher.Constraint("Horizontal", 57, 2, 58, 1),
    Sketcher.Constraint("Vertical", 22, 3, 24, 3),
    Sketcher.Constraint("Vertical", 16, 3, 46, 3),
    Sketcher.Constraint("Vertical", 6, 3, 56, 3),
    Sketcher.Constraint("Vertical", 78, 3, 0, 1),
    Sketcher.Constraint("Vertical", 21, 2, 22, 1),
    Sketcher.Constraint("Vertical", 23, 2, 24, 1),
    Sketcher.Constraint("Vertical", 37, 2, 38, 1),
    Sketcher.Constraint("Vertical", 61, 2, 62, 1),
    Sketcher.Constraint("Vertical", 77, 2, 78, 1),
    Sketcher.Constraint("Equal", 59, 23),
    Sketcher.Constraint("Equal", 57, 25),
    Sketcher.Constraint("Equal", 55, 27),
    Sketcher.Constraint("Equal", 51, 31),
    Sketcher.Constraint("Equal", 13, 29),
    Sketcher.Constraint("Radius", 0, Q("0.02 in")),
    Sketcher.Constraint("Radius", 8, Q("0.04 in")),
    Sketcher.Constraint("Diameter", 80, Q("0.205 in")),
    Sketcher.Constraint("Radius", 1, Q("0.083 in")),
    Sketcher.Constraint("Radius", 10, Q("0.125 in")),
    Sketcher.Constraint("DistanceX", 0, 3, -1, 1, Q("0.5 in")),
    Sketcher.Constraint("DistanceY", 2, 3, -1, 1, Q("0.5 in")),
    Sketcher.Constraint("Radius", 6, Q("0.0435 in")),
    Sketcher.Constraint("DistanceX", 11, 1, 11, 2, Q("0.1274 in")),
    Sketcher.Constraint("DistanceY", 0, 3, -1, 1, Q("0.396 in")),
    Sketcher.Constraint("DistanceX", 6, 3, -1, 1, Q("0.171 in")),
    Sketcher.Constraint("DistanceY", 10, 3, -1, 1, Q("0.302 in")),
    Sketcher.Constraint("DistanceX", 3, 1, 3, 2, 3.2173),
])
sketch1.setExpression("Constraints[199]", "Params.sketch1_radius")
sketch1.setExpression("Constraints[200]", "Params.sketch1_radius2")
sketch1.setExpression("Constraints[201]", "Params.sketch1_diameter")
sketch1.setExpression("Constraints[202]", "Params.sketch1_radius3")
sketch1.setExpression("Constraints[203]", "Params.sketch1_radius4")
pad1 = doc.addObject("PartDesign::Pad", "Pad")
body.addObject(pad1)
pad1.Profile = sketch1
pad1.setExpression("Length", "Params.pad1_length")
pad1.Reversed = True

doc.recompute()
